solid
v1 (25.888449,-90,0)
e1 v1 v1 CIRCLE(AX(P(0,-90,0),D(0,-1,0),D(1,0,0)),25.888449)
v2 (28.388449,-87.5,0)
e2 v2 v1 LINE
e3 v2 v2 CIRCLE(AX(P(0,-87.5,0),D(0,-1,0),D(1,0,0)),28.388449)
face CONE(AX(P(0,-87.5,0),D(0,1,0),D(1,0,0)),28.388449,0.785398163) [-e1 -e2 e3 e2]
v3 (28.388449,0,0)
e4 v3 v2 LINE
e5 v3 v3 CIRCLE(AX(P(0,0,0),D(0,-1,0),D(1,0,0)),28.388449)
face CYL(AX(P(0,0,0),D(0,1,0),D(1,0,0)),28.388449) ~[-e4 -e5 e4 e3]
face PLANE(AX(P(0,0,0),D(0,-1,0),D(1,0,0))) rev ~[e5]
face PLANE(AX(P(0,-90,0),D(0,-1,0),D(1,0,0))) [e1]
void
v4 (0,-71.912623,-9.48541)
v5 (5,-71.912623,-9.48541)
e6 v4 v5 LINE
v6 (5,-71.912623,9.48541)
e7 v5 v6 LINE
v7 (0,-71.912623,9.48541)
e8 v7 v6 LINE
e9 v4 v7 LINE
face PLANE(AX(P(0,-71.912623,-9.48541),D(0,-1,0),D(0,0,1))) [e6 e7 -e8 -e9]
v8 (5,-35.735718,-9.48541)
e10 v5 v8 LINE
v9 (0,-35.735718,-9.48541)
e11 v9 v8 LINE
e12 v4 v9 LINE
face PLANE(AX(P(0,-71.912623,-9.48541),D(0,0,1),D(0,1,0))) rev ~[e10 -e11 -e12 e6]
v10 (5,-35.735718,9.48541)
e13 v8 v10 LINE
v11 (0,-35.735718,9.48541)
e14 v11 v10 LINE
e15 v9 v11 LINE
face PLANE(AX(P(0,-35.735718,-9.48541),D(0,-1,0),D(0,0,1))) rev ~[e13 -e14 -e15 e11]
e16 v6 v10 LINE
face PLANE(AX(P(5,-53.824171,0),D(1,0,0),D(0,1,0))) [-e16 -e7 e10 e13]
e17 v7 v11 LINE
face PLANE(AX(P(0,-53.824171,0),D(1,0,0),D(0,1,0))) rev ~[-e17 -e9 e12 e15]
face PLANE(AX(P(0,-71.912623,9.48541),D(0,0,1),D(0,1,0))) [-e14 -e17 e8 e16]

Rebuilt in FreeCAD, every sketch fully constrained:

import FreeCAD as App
import Part
import Sketcher

V = App.Vector


def edges_at(feature, points):
    """Names of the edges that pass closest to the given points."""
    edges = feature.Shape.Edges
    near = lambda p: min(range(len(edges)), key=lambda i: edges[i].distToShape(Part.Vertex(*p))[0])
    return sorted({f"Edge{near(p) + 1}" for p in points})

doc = App.newDocument("Part")
body = doc.addObject("PartDesign::Body", "Body")

# Sketch on XZ plane
sketch1 = doc.addObject("Sketcher::SketchObject", "Sketch")
body.addObject(sketch1)
sketch1.AttachmentSupport = (doc.XZ_Plane, [""])
sketch1.MapMode = "FlatFace"
sketch1.addGeometry(Part.Circle(V(0, 0, 0), V(0, 0, 1), 28), False)
sketch1.addConstraint([
    Sketcher.Constraint("Coincident", 0, 3, -1, 1),
    Sketcher.Constraint("Diameter", 0, 56.776898),
])
pad1 = doc.addObject("PartDesign::Pad", "Pad")
body.addObject(pad1)
pad1.Profile = sketch1
pad1.Length = 90
doc.recompute()

chamfer = doc.addObject("PartDesign::Chamfer", "Chamfer")
body.addObject(chamfer)
chamfer.Base = (pad1, edges_at(pad1, [(-28.388, -90, 0)]))
chamfer.Size = 2.5

# Sketch on YZ plane
sketch2 = doc.addObject("Sketcher::SketchObject", "Sketch001")
body.addObject(sketch2)
sketch2.AttachmentSupport = (doc.YZ_Plane, [""])
sketch2.MapMode = "FlatFace"
sketch2.addGeometry([
    Part.LineSegment(V(-72, 9, 0), V(-72, -9, 0)),
    Part.LineSegment(V(-72, -9, 0), V(-36, -9, 0)),
    Part.LineSegment(V(-36, -9, 0), V(-36, 9, 0)),
    Part.LineSegment(V(-36, 9, 0), V(-72, 9, 0)),
], False)
sketch2.addConstraint([
    Sketcher.Constraint("Coincident", 0, 2, 1, 1),
    Sketcher.Constraint("Coincident", 1, 2, 2, 1),
    Sketcher.Constraint("Coincident", 2, 2, 3, 1),
    Sketcher.Constraint("Coincident", 3, 2, 0, 1),
    Sketcher.Constraint("Vertical", 0),
    Sketcher.Constraint("Horizontal", 1),
    Sketcher.Constraint("Vertical", 2),
    Sketcher.Constraint("Horizontal", 3),
    Sketcher.Constraint("DistanceY", 0, 2, 0, 1, 18.97082),
    Sketcher.Constraint("DistanceX", 1, 1, 1, 2, 36.176905),
    Sketcher.Constraint("DistanceY", 0, 2, -1, 1, 9.48541),
    Sketcher.Constraint("DistanceX", 1, 2, -1, 1, 35.735718),
])
pocket1 = doc.addObject("PartDesign::Pocket", "Pocket")
body.addObject(pocket1)
pocket1.Profile = sketch2
pocket1.Length = 5
pocket1.Reversed = True

doc.recompute()
